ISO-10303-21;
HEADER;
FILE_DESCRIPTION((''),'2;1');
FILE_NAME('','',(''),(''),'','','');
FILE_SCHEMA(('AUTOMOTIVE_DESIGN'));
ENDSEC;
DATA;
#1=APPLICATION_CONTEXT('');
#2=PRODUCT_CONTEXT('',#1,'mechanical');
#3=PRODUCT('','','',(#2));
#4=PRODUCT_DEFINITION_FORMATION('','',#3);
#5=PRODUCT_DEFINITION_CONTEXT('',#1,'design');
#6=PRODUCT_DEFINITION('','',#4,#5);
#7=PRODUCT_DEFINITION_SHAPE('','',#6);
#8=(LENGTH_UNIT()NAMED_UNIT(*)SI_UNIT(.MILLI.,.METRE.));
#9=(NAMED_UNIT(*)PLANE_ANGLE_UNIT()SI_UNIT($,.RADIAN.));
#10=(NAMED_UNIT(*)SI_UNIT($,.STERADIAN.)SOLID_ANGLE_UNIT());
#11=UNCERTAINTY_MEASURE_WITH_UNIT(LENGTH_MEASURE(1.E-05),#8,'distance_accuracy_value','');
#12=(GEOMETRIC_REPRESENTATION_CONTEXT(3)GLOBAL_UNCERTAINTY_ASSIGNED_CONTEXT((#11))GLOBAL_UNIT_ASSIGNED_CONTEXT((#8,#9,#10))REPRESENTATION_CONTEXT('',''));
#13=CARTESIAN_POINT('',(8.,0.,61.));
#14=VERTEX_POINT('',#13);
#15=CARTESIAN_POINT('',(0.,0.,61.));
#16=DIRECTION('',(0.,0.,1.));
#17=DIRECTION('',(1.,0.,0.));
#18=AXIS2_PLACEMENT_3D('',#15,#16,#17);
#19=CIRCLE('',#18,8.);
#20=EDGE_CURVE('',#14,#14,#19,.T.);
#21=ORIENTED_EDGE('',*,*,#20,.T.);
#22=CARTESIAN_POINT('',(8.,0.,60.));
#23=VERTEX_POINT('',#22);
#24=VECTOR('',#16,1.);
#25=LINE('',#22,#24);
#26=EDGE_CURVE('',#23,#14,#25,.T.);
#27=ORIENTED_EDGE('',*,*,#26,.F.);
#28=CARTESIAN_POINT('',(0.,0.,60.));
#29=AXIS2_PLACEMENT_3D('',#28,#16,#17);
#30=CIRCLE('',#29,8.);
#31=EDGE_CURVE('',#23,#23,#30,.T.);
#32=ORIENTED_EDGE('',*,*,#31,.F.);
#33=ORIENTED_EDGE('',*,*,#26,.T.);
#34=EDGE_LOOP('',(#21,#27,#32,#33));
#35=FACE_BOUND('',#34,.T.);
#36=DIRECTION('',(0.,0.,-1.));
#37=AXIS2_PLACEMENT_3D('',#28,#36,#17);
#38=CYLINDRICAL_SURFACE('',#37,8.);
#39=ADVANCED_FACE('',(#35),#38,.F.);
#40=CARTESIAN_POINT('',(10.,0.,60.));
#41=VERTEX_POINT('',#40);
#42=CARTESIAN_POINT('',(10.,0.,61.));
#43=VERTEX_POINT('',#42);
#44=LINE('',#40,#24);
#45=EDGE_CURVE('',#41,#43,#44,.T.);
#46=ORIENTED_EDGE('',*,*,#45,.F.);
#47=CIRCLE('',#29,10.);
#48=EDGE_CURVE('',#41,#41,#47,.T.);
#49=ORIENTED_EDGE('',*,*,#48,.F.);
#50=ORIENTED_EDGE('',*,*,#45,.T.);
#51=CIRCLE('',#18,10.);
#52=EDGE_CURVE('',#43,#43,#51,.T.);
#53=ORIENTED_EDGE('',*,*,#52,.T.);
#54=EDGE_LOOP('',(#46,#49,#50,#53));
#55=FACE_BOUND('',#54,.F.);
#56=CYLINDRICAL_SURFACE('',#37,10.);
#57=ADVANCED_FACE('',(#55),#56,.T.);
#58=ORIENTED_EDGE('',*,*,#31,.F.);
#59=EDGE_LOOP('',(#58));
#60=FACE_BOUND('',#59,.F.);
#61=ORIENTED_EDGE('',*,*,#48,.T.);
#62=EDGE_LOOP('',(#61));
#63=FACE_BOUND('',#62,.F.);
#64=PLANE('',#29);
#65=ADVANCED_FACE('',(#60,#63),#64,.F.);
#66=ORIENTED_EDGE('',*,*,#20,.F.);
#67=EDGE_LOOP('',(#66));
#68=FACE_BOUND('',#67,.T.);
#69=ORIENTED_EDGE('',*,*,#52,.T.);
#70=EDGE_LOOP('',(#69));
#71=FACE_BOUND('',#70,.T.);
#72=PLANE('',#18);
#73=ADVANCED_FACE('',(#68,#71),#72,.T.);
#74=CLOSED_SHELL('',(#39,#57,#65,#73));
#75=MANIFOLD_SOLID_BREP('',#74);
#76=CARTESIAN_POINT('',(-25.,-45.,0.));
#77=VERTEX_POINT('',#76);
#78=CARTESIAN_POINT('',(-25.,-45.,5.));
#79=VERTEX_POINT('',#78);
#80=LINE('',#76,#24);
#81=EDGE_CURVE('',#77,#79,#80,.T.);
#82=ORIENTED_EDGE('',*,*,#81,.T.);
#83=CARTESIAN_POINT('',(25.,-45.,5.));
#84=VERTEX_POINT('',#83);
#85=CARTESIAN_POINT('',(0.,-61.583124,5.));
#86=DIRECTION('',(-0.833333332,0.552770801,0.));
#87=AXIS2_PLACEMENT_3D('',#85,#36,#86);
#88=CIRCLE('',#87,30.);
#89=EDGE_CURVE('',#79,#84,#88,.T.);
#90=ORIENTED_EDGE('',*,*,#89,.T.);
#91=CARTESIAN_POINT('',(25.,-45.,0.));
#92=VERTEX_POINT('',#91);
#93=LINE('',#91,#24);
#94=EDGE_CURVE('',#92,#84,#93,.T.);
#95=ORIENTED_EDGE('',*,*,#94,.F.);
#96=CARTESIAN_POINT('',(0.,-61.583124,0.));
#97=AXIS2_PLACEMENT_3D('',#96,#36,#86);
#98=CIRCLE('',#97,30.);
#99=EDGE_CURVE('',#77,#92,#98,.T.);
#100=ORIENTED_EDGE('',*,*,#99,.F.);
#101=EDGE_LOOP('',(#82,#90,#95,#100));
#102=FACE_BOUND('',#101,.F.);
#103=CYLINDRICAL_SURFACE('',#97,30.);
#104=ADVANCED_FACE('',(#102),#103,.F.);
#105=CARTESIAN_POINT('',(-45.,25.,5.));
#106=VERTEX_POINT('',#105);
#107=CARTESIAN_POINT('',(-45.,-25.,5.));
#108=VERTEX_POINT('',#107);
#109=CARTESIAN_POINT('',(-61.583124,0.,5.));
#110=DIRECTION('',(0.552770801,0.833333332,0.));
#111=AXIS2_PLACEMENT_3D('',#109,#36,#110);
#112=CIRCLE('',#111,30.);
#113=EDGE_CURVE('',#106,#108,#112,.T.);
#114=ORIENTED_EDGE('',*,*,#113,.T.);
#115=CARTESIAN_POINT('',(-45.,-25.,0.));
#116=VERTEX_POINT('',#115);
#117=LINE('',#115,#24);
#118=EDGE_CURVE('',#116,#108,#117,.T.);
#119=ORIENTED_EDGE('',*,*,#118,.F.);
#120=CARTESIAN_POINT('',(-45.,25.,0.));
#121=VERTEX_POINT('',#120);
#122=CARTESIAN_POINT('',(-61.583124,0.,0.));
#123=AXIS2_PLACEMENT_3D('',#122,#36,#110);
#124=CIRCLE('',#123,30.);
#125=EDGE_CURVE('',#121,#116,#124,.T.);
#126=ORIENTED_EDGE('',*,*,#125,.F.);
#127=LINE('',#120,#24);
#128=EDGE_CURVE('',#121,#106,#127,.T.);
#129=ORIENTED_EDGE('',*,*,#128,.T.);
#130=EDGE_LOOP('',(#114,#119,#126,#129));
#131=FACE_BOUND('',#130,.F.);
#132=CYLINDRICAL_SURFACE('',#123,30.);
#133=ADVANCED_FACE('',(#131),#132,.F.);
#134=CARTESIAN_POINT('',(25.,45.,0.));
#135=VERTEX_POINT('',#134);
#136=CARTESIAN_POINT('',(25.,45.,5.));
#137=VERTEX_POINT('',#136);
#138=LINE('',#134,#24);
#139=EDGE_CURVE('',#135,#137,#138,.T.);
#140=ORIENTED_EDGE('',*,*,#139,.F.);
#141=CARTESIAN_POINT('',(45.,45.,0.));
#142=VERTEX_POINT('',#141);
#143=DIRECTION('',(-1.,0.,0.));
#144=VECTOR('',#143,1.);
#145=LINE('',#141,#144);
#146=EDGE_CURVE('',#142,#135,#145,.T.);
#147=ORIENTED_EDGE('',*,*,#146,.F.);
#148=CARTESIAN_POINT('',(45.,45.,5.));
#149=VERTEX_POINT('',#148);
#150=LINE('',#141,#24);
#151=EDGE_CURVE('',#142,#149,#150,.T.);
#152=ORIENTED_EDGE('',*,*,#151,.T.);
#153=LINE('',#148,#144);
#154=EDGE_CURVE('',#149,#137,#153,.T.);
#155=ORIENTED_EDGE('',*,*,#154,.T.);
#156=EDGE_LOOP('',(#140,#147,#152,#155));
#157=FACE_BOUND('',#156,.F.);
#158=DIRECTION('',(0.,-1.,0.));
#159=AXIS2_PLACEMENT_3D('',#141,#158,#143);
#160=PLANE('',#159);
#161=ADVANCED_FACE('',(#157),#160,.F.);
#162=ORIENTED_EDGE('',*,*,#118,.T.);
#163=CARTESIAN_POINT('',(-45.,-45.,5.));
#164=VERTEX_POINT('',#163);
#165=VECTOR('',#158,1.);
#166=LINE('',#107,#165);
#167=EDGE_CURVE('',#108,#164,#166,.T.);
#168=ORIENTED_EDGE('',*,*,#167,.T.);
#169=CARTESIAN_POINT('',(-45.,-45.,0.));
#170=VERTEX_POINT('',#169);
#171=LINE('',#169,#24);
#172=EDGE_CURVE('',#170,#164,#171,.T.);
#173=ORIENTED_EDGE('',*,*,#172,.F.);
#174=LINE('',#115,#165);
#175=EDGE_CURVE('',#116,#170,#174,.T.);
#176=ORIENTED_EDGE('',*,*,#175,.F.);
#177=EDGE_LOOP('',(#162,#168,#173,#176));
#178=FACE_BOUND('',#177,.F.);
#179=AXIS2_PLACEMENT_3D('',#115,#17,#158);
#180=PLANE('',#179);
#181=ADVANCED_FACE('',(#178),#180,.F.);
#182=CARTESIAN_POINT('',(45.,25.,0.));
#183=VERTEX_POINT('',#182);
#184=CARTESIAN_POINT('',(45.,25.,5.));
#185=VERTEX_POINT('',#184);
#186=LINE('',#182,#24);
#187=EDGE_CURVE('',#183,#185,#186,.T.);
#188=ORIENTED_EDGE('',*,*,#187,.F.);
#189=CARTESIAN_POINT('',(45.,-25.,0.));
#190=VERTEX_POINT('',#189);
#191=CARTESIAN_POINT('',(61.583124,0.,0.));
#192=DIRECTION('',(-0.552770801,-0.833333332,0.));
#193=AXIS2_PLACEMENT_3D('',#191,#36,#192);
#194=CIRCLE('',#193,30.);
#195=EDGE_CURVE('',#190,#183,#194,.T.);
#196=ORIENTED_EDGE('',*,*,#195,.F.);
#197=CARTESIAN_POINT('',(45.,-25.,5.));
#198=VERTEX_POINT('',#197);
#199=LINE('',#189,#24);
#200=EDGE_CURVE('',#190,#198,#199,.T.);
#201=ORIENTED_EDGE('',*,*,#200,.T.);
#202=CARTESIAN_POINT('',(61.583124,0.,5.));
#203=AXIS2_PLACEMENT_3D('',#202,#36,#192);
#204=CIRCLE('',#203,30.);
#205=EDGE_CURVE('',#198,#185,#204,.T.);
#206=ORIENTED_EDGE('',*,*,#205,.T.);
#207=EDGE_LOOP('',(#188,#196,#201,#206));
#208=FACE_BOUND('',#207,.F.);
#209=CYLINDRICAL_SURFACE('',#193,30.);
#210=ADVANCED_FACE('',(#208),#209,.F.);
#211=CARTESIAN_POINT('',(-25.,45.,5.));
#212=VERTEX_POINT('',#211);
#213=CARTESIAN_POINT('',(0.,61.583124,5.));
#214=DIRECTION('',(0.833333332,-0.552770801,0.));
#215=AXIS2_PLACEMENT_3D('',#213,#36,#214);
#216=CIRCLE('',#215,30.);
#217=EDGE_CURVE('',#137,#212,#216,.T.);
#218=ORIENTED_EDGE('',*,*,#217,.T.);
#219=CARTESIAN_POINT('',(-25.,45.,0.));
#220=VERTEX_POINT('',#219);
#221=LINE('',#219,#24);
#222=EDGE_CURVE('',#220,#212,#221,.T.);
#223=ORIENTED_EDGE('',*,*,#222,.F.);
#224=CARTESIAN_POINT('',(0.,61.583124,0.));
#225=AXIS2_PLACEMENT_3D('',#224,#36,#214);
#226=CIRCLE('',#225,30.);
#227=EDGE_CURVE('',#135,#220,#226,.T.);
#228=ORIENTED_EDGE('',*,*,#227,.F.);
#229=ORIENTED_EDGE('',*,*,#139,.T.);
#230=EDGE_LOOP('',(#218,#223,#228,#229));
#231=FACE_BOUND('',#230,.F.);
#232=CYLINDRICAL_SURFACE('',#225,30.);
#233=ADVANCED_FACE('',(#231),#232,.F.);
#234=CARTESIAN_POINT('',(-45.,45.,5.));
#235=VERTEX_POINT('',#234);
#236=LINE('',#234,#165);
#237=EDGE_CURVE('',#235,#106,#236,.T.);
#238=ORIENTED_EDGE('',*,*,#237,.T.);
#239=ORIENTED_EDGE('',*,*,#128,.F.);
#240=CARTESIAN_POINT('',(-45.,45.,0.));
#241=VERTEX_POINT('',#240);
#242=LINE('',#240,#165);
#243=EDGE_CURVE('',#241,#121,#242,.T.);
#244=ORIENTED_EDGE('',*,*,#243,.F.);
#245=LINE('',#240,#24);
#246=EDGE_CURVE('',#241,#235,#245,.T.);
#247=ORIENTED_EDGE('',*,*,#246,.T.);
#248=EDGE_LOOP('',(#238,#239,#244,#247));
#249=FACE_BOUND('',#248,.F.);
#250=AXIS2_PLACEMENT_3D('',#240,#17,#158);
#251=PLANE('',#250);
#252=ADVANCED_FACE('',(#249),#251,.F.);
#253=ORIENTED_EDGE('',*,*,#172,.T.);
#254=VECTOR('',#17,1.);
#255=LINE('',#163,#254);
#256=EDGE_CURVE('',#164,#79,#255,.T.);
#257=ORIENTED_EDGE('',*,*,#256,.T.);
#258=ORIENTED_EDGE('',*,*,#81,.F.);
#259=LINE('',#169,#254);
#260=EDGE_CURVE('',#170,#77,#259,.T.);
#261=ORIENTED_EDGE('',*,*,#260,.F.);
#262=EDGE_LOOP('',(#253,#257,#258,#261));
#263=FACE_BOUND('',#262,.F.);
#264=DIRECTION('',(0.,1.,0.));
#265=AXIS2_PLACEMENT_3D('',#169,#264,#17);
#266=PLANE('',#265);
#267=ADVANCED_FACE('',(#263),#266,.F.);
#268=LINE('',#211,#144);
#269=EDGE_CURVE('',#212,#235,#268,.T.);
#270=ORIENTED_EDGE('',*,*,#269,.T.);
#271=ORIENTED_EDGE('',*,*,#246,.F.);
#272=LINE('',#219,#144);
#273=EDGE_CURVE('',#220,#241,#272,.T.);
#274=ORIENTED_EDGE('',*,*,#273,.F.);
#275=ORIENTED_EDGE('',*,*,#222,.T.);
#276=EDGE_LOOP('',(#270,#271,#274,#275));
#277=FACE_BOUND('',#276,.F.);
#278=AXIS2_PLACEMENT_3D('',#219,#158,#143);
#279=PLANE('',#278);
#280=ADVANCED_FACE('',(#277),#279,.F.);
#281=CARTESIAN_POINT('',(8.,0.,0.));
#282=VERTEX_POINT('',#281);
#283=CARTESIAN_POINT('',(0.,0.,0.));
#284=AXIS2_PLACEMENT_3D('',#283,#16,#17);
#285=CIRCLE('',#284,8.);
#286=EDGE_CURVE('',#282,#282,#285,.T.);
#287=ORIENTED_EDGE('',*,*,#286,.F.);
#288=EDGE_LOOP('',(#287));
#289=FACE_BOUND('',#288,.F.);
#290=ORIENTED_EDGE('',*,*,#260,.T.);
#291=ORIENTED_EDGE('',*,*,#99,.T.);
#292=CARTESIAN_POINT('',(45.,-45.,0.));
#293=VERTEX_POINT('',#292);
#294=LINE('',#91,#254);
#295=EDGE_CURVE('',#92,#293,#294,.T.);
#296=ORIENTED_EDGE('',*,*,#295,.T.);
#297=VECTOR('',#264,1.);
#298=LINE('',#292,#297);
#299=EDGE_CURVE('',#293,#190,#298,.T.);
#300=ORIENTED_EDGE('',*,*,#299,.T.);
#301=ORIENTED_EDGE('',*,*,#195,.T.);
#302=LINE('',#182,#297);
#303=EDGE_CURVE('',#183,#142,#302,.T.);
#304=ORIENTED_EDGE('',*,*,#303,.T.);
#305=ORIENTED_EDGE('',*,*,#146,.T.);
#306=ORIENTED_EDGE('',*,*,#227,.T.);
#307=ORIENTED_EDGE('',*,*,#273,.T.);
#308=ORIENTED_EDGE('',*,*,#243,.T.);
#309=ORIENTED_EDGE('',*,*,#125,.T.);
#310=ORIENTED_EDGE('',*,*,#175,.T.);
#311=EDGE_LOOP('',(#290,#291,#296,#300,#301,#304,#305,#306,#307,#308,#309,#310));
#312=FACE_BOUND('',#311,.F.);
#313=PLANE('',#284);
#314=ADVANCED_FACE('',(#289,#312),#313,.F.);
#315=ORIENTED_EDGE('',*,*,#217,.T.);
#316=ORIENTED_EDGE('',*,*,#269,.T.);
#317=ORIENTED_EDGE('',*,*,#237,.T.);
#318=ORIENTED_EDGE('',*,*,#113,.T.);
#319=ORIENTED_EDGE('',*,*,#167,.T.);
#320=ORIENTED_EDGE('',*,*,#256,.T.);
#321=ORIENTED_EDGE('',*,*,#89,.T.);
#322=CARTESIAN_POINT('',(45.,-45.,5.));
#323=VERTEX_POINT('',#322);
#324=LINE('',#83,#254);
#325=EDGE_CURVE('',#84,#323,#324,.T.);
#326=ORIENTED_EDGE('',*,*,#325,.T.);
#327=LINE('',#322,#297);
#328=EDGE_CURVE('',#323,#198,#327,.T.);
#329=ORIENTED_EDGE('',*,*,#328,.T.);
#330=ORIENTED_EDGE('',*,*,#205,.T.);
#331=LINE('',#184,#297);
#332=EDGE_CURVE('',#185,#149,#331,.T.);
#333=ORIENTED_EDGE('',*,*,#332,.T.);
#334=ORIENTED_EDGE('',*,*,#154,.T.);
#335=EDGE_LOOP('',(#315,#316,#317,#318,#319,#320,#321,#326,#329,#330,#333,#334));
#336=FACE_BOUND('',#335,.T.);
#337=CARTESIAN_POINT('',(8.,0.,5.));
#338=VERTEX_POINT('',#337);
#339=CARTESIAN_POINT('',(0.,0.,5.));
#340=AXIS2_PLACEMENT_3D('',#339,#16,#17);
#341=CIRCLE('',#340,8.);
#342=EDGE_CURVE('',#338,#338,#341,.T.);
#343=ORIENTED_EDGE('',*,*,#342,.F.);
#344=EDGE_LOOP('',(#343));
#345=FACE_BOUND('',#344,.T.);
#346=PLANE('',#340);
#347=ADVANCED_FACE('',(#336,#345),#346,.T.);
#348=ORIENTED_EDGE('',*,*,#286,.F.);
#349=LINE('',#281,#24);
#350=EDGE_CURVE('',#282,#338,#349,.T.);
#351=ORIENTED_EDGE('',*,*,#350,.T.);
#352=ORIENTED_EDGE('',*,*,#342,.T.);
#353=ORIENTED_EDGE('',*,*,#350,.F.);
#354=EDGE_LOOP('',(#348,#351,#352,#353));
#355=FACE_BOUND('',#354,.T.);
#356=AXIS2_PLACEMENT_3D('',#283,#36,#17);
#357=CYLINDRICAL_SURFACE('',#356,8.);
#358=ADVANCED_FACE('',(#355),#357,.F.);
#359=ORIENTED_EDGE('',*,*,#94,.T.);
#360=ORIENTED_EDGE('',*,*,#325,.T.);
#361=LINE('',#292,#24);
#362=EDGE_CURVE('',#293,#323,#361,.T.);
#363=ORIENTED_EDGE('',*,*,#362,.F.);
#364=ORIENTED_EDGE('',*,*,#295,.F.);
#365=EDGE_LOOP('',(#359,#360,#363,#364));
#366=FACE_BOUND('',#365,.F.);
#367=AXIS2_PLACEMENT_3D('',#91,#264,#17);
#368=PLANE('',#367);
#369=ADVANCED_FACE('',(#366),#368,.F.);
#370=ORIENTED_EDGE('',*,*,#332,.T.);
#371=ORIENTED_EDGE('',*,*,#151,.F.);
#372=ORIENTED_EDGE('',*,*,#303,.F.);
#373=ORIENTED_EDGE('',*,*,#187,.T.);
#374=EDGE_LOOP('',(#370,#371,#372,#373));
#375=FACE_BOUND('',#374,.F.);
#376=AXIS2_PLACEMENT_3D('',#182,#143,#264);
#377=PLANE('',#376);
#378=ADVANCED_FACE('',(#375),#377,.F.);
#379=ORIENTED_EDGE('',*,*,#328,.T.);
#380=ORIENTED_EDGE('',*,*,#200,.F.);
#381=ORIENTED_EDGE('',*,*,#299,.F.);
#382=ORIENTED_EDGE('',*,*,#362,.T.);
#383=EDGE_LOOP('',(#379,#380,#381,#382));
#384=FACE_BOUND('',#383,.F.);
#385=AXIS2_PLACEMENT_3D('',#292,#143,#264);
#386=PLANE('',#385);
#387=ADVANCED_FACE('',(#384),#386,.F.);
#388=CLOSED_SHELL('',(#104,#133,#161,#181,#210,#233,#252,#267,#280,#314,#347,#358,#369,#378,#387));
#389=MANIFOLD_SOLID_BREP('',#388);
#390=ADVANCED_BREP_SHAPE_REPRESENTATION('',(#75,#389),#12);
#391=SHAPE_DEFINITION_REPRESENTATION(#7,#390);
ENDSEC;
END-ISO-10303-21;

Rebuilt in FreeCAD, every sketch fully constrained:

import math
import FreeCAD as App
import Part
import Sketcher
Q = App.Units.Quantity

doc = App.newDocument("Part")
body = doc.addObject("PartDesign::Body", "Body")

# Sketch on XY plane
sketch1 = body.newObject("Sketcher::SketchObject", "Sketch")
sketch1.AttachmentSupport = (doc.getObject("XY_Plane"), [""])
sketch1.MapMode = "FlatFace"
sketch1.addGeometry([
    Part.LineSegment(App.Vector(25, -45, 0), App.Vector(45, -45, 0)),  # 0
    Part.LineSegment(App.Vector(45, -45, 0), App.Vector(45, -25, 0)),  # 1
    Part.ArcOfCircle(Part.Circle(App.Vector(62, 0, 0), App.Vector(0, 0, 1), 30), math.radians(124), math.radians(236)),  # 2
    Part.LineSegment(App.Vector(45, 25, 0), App.Vector(45, 45, 0)),  # 3
    Part.LineSegment(App.Vector(45, 45, 0), App.Vector(25, 45, 0)),  # 4
    Part.ArcOfCircle(Part.Circle(App.Vector(0, 62, 0), App.Vector(0, 0, 1), 30), math.radians(-146), math.radians(-34)),  # 5
    Part.LineSegment(App.Vector(-25, 45, 0), App.Vector(-45, 45, 0)),  # 6
    Part.LineSegment(App.Vector(-45, 45, 0), App.Vector(-45, 25, 0)),  # 7
    Part.ArcOfCircle(Part.Circle(App.Vector(-62, 0, 0), App.Vector(0, 0, 1), 30), math.radians(-56), math.radians(56)),  # 8
    Part.LineSegment(App.Vector(-45, -25, 0), App.Vector(-45, -45, 0)),  # 9
    Part.LineSegment(App.Vector(-45, -45, 0), App.Vector(-25, -45, 0)),  # 10
    Part.ArcOfCircle(Part.Circle(App.Vector(0, -62, 0), App.Vector(0, 0, 1), 30), math.radians(34), math.radians(146)),  # 11
    Part.Circle(App.Vector(0, 0, 0), App.Vector(0, 0, 1), 8),  # 12
], False)
sketch1.addConstraint([
    Sketcher.Constraint("Coincident", 0, 2, 1, 1),
    Sketcher.Constraint("Coincident", 1, 2, 2, 2),
    Sketcher.Constraint("Coincident", 2, 1, 3, 1),
    Sketcher.Constraint("Coincident", 3, 2, 4, 1),
    Sketcher.Constraint("Coincident", 4, 2, 5, 2),
    Sketcher.Constraint("Coincident", 5, 1, 6, 1),
    Sketcher.Constraint("Coincident", 6, 2, 7, 1),
    Sketcher.Constraint("Coincident", 7, 2, 8, 2),
    Sketcher.Constraint("Coincident", 8, 1, 9, 1),
    Sketcher.Constraint("Coincident", 9, 2, 10, 1),
    Sketcher.Constraint("Coincident", 10, 2, 11, 2),
    Sketcher.Constraint("Coincident", 11, 1, 0, 1),
    Sketcher.Constraint("Horizontal", 0),
    Sketcher.Constraint("Vertical", 1),
    Sketcher.Constraint("Vertical", 3),
    Sketcher.Constraint("Horizontal", 4),
    Sketcher.Constraint("Horizontal", 6),
    Sketcher.Constraint("Vertical", 7),
    Sketcher.Constraint("Vertical", 9),
    Sketcher.Constraint("Horizontal", 10),
    Sketcher.Constraint("Coincident", 12, 3, -1, 1),
    Sketcher.Constraint("Equal", 2, 5),
    Sketcher.Constraint("Equal", 5, 8),
    Sketcher.Constraint("Equal", 8, 11),
    Sketcher.Constraint("Symmetric", 2, 3, 8, 3, -1, 1),
    Sketcher.Constraint("Symmetric", 5, 3, 11, 3, -1, 1),
    Sketcher.Constraint("Symmetric", 0, 2, 6, 2, -1, 1),
    Sketcher.Constraint("Symmetric", 3, 2, 9, 2, -1, 1),
    Sketcher.Constraint("Symmetric", 4, 2, 5, 1, -2),
    Sketcher.Constraint("Symmetric", 2, 1, 7, 2, -2),
    Sketcher.Constraint("Equal", 10, 1),
    Sketcher.Constraint("Diameter", 12, Q("16 mm")),
    Sketcher.Constraint("Radius", 2, Q("30 mm")),
    Sketcher.Constraint("DistanceX", 0, 1, 0, 2, Q("20 mm")),
    Sketcher.Constraint("DistanceX", -1, 1, 0, 2, Q("45 mm")),
    Sketcher.Constraint("DistanceY", 0, 2, -1, 1, Q("45 mm")),
])
pad1 = body.newObject("PartDesign::Pad", "Pad")
pad1.Profile = sketch1
pad1.Length = 5
body2 = doc.addObject("PartDesign::Body", "Body001")

# Sketch on XY plane
sketch2 = body2.newObject("Sketcher::SketchObject", "Sketch001")
sketch2.AttachmentSupport = (doc.getObject("XY_Plane001"), [""])
sketch2.MapMode = "FlatFace"
sketch2.AttachmentOffset = App.Placement(App.Vector(0, 0, 60), App.Rotation())
sketch2.addGeometry([
    Part.Circle(App.Vector(0, 0, 0), App.Vector(0, 0, 1), 10),
    Part.Circle(App.Vector(0, 0, 0), App.Vector(0, 0, 1), 8),
], False)
sketch2.addConstraint([
    Sketcher.Constraint("Coincident", 0, 3, -1, 1),
    Sketcher.Constraint("Coincident", 1, 3, -1, 1),
    Sketcher.Constraint("Diameter", 0, Q("20 mm")),
    Sketcher.Constraint("Diameter", 1, Q("16 mm")),
])
pad2 = body2.newObject("PartDesign::Pad", "Pad001")
pad2.Profile = sketch2
pad2.Length = 1

doc.recompute()
